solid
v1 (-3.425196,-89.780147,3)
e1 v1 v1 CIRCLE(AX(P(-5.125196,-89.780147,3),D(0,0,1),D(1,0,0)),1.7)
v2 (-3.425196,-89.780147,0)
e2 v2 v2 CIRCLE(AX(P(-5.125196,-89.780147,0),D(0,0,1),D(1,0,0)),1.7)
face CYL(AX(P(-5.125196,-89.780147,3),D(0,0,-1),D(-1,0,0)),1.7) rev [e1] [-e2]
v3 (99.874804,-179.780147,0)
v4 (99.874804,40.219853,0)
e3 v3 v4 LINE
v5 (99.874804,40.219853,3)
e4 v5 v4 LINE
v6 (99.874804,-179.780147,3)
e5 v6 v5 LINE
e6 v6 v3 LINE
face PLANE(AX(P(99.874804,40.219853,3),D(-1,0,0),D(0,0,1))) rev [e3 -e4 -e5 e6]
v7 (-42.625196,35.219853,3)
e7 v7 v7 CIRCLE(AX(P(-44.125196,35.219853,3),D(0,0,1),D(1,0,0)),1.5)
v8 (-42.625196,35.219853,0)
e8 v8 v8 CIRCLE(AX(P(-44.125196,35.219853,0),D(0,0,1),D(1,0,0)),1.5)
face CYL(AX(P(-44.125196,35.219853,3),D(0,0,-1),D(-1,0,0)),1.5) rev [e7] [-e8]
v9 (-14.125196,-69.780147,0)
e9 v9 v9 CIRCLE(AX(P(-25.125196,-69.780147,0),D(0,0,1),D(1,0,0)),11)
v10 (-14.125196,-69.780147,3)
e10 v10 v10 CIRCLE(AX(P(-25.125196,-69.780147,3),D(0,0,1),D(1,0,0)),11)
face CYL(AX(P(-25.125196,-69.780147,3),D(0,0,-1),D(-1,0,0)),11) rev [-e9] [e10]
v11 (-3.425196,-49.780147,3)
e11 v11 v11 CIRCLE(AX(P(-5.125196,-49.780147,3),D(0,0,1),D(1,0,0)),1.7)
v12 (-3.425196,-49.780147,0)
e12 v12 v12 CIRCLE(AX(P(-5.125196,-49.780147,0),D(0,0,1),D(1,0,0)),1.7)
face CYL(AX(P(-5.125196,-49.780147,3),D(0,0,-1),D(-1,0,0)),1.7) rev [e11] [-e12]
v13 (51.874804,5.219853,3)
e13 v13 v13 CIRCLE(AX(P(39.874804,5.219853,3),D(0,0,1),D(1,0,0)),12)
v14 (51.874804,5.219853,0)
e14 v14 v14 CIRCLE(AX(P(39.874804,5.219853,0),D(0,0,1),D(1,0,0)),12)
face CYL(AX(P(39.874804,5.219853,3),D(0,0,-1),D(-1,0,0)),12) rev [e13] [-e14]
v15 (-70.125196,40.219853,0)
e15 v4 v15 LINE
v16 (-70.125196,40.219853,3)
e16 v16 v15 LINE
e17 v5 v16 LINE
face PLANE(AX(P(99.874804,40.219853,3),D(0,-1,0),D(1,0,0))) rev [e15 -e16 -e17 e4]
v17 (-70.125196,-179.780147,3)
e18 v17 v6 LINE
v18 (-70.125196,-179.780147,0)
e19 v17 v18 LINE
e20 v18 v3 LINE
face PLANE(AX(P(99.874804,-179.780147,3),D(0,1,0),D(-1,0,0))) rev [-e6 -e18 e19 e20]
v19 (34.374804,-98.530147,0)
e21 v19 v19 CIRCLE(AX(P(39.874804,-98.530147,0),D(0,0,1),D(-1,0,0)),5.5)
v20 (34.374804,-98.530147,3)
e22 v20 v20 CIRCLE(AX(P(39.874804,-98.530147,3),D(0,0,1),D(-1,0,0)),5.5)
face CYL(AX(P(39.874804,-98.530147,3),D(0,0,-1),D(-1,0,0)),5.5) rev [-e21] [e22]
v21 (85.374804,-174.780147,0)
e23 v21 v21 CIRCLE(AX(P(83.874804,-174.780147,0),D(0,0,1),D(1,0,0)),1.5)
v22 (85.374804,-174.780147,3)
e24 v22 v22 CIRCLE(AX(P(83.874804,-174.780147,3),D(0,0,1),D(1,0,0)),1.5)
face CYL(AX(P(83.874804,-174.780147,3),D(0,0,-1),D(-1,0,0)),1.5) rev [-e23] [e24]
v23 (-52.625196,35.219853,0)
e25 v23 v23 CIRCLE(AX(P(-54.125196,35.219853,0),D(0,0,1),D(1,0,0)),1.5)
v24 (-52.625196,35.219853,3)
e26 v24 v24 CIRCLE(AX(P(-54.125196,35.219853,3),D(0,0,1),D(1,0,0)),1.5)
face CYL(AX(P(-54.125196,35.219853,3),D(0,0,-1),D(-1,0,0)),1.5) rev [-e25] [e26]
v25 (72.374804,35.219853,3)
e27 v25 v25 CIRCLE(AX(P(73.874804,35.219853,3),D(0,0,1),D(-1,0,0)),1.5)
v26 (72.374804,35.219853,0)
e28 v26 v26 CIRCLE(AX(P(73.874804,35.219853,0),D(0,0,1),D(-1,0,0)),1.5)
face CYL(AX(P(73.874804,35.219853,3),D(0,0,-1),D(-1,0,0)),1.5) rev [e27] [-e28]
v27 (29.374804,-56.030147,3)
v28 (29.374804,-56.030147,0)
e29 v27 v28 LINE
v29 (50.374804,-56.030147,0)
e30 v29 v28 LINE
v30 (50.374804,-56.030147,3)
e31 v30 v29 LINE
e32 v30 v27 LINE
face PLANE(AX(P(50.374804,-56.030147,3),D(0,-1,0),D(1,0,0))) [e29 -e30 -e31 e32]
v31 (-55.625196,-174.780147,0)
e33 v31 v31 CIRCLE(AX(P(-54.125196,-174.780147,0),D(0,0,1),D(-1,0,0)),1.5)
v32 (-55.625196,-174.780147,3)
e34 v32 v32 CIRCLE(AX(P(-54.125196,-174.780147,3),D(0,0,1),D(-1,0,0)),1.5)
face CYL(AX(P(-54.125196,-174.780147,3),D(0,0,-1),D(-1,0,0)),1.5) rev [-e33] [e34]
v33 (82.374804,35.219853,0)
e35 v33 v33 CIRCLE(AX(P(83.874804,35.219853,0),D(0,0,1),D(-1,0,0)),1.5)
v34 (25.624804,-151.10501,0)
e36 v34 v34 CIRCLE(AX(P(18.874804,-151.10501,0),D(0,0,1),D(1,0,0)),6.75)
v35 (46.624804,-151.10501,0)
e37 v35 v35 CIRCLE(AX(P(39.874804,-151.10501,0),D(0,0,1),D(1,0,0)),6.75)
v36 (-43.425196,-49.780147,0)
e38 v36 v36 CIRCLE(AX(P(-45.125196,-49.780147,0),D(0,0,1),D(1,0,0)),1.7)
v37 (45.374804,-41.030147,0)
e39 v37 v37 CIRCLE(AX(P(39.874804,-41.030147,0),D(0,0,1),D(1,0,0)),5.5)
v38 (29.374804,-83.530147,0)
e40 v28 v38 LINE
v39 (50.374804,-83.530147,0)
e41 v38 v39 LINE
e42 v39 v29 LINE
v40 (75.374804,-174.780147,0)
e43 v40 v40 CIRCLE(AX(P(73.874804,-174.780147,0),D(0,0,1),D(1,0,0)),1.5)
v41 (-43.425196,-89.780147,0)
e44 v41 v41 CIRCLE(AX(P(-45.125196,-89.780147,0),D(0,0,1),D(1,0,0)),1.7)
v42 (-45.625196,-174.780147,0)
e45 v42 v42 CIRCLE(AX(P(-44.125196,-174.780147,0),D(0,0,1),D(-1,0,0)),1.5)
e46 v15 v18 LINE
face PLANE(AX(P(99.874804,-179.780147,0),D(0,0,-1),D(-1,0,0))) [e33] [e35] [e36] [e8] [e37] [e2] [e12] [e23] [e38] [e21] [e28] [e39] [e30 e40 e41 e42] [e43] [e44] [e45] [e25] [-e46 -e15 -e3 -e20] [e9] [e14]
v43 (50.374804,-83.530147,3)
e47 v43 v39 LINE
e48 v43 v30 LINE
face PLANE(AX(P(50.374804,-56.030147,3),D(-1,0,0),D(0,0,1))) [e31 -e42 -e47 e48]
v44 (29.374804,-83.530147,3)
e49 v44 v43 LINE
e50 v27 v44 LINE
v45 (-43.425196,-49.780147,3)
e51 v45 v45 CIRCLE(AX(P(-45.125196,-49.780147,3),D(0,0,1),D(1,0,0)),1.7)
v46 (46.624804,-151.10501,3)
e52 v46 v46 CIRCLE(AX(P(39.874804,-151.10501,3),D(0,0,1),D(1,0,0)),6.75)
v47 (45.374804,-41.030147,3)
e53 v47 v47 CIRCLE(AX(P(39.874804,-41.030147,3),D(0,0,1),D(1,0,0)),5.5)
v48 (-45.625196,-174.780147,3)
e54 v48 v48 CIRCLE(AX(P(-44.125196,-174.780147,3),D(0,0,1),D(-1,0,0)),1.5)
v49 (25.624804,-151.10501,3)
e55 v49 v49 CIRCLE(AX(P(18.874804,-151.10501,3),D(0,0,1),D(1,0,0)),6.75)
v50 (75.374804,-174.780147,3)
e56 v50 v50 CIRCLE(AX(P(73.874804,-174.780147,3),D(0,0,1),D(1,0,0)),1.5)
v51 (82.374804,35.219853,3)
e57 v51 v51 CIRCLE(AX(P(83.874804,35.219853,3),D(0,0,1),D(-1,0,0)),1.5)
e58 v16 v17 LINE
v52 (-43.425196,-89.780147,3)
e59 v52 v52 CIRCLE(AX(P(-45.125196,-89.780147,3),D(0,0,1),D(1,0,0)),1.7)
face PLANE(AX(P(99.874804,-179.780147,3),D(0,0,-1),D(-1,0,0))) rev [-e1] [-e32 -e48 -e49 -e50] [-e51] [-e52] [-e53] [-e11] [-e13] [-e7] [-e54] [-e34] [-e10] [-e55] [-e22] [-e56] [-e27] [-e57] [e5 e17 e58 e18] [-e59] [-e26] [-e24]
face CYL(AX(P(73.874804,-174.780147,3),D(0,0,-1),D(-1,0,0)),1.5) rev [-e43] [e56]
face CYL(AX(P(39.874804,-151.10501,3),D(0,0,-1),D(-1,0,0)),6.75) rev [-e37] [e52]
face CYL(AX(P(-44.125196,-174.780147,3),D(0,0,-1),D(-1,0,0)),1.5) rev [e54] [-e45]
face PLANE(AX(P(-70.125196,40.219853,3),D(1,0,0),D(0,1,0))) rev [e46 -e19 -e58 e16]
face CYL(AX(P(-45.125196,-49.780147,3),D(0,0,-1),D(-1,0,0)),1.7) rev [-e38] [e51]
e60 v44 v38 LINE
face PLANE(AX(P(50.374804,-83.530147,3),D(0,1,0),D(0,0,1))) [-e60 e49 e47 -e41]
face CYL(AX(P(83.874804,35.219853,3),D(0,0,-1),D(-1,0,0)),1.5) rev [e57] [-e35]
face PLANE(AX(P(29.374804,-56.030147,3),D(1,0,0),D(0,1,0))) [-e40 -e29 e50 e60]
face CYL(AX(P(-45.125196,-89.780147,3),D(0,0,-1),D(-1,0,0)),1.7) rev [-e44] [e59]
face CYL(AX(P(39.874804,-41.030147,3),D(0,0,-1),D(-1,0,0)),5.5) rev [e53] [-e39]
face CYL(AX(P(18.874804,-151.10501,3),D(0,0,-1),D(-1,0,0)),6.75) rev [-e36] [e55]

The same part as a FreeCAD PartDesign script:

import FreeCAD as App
import Part
import Sketcher

V = App.Vector
Q = App.Units.Quantity


def add_polygon(sketch, points):
    """Adds a closed chain of lines whose ends are joined by coincident constraints."""
    first, n = sketch.GeometryCount, len(points)
    for a, b in zip(points, points[1:] + points[:1]):
        sketch.addGeometry(Part.LineSegment(App.Vector(*a, 0), App.Vector(*b, 0)), False)
    for i in range(n):
        sketch.addConstraint(Sketcher.Constraint("Coincident", first + i, 2, first + (i + 1) % n, 1))

doc = App.newDocument("Part")
body = doc.addObject("PartDesign::Body", "Body")

sketch1 = body.newObject("Sketcher::SketchObject", "Sketch")
sketch1.AttachmentSupport = (doc.getObject("XY_Plane"), [""])
sketch1.MapMode = "FlatFace"
add_polygon(sketch1, [(-70.1, 40.2), (-70.1, -179.8), (99.9, -179.8), (99.9, 40.2)])
sketch1.addGeometry(Part.Circle(V(-54.1, -174.8, 0), V(0, 0, 1), 1.5), False)
sketch1.addGeometry(Part.Circle(V(-44.1, -174.8, 0), V(0, 0, 1), 1.5), False)
sketch1.addGeometry(Part.Circle(V(-45.1, -89.8, 0), V(0, 0, 1), 1.7), False)
sketch1.addGeometry(Part.Circle(V(-5.1, -89.8, 0), V(0, 0, 1), 1.7), False)
sketch1.addGeometry(Part.Circle(V(18.9, -151.1, 0), V(0, 0, 1), 6.8), False)
sketch1.addGeometry(Part.Circle(V(39.9, -151.1, 0), V(0, 0, 1), 6.8), False)
sketch1.addGeometry(Part.Circle(V(73.9, -174.8, 0), V(0, 0, 1), 1.5), False)
sketch1.addGeometry(Part.Circle(V(83.9, -174.8, 0), V(0, 0, 1), 1.5), False)
sketch1.addGeometry(Part.Circle(V(39.9, -98.5, 0), V(0, 0, 1), 5.5), False)
sketch1.addGeometry(Part.Circle(V(-45.1, -49.8, 0), V(0, 0, 1), 1.7), False)
sketch1.addGeometry(Part.Circle(V(-25.1, -69.8, 0), V(0, 0, 1), 11), False)
sketch1.addGeometry(Part.Circle(V(-5.1, -49.8, 0), V(0, 0, 1), 1.7), False)
sketch1.addGeometry(Part.Circle(V(-54.1, 35.2, 0), V(0, 0, 1), 1.5), False)
sketch1.addGeometry(Part.Circle(V(-44.1, 35.2, 0), V(0, 0, 1), 1.5), False)
add_polygon(sketch1, [(50.4, -83.5), (29.4, -83.5), (29.4, -56), (50.4, -56)])
sketch1.addGeometry(Part.Circle(V(39.9, -41, 0), V(0, 0, 1), 5.5), False)
sketch1.addGeometry(Part.Circle(V(39.9, 5.2, 0), V(0, 0, 1), 12), False)
sketch1.addGeometry(Part.Circle(V(73.9, 35.2, 0), V(0, 0, 1), 1.5), False)
sketch1.addGeometry(Part.Circle(V(83.9, 35.2, 0), V(0, 0, 1), 1.5), False)
sketch1.addConstraint(Sketcher.Constraint("Vertical", 0))
sketch1.addConstraint(Sketcher.Constraint("Horizontal", 1))
sketch1.addConstraint(Sketcher.Constraint("Vertical", 2))
sketch1.addConstraint(Sketcher.Constraint("Horizontal", 3))
sketch1.addConstraint(Sketcher.Constraint("Horizontal", 18))
sketch1.addConstraint(Sketcher.Constraint("Vertical", 19))
sketch1.addConstraint(Sketcher.Constraint("Horizontal", 20))
sketch1.addConstraint(Sketcher.Constraint("Vertical", 21))
sketch1.addConstraint(Sketcher.Constraint("Equal", 4, 5))
sketch1.addConstraint(Sketcher.Constraint("Equal", 6, 7))
sketch1.addConstraint(Sketcher.Constraint("Equal", 8, 9))
sketch1.addConstraint(Sketcher.Constraint("Equal", 5, 10))
sketch1.addConstraint(Sketcher.Constraint("Equal", 10, 11))
sketch1.addConstraint(Sketcher.Constraint("Equal", 7, 13))
sketch1.addConstraint(Sketcher.Constraint("Equal", 13, 15))
sketch1.addConstraint(Sketcher.Constraint("Equal", 11, 16))
sketch1.addConstraint(Sketcher.Constraint("Equal", 16, 17))
sketch1.addConstraint(Sketcher.Constraint("Equal", 12, 22))
sketch1.addConstraint(Sketcher.Constraint("Equal", 17, 24))
sketch1.addConstraint(Sketcher.Constraint("Equal", 24, 25))
sketch1.addConstraint(Sketcher.Constraint("Horizontal", 4, 3, 5, 3))
sketch1.addConstraint(Sketcher.Constraint("Horizontal", 6, 3, 7, 3))
sketch1.addConstraint(Sketcher.Constraint("Horizontal", 8, 3, 9, 3))
sketch1.addConstraint(Sketcher.Constraint("Horizontal", 5, 3, 10, 3))
sketch1.addConstraint(Sketcher.Constraint("Horizontal", 10, 3, 11, 3))
sketch1.addConstraint(Sketcher.Constraint("Horizontal", 13, 3, 15, 3))
sketch1.addConstraint(Sketcher.Constraint("Horizontal", 16, 3, 17, 3))
sketch1.addConstraint(Sketcher.Constraint("Horizontal", 17, 3, 24, 3))
sketch1.addConstraint(Sketcher.Constraint("Horizontal", 24, 3, 25, 3))
sketch1.addConstraint(Sketcher.Constraint("Vertical", 9, 3, 12, 3))
sketch1.addConstraint(Sketcher.Constraint("Vertical", 6, 3, 13, 3))
sketch1.addConstraint(Sketcher.Constraint("Vertical", 7, 3, 15, 3))
sketch1.addConstraint(Sketcher.Constraint("Vertical", 4, 3, 16, 3))
sketch1.addConstraint(Sketcher.Constraint("Vertical", 5, 3, 17, 3))
sketch1.addConstraint(Sketcher.Constraint("Vertical", 12, 3, 22, 3))
sketch1.addConstraint(Sketcher.Constraint("Vertical", 22, 3, 23, 3))
sketch1.addConstraint(Sketcher.Constraint("Vertical", 10, 3, 24, 3))
sketch1.addConstraint(Sketcher.Constraint("Vertical", 11, 3, 25, 3))
sketch1.addConstraint(Sketcher.Constraint("Diameter", 4, Q("3 mm")))
sketch1.addConstraint(Sketcher.Constraint("Diameter", 12, Q("11 mm")))
sketch1.addConstraint(Sketcher.Constraint("Diameter", 14, Q("22 mm")))
sketch1.addConstraint(Sketcher.Constraint("Diameter", 23, Q("24 mm")))
sketch1.addConstraint(Sketcher.Constraint("Diameter", 6, Q("3.4 mm")))
sketch1.addConstraint(Sketcher.Constraint("Diameter", 8, Q("13.5 mm")))
sketch1.addConstraint(Sketcher.Constraint("DistanceX", 1, 1, 1, 2, Q("170 mm")))
sketch1.addConstraint(Sketcher.Constraint("DistanceX", 18, 2, 18, 1, Q("21 mm")))
sketch1.addConstraint(Sketcher.Constraint("DistanceY", 0, 2, 0, 1, Q("220 mm")))
sketch1.addConstraint(Sketcher.Constraint("DistanceY", 19, 1, 19, 2, Q("27.5 mm")))
sketch1.addConstraint(Sketcher.Constraint("DistanceX", 4, 3, 5, 3, Q("10 mm")))
sketch1.addConstraint(Sketcher.Constraint("DistanceX", 6, 3, 5, 3, Q("1 mm")))
sketch1.addConstraint(Sketcher.Constraint("DistanceY", 5, 3, 6, 3, Q("85 mm")))
sketch1.addConstraint(Sketcher.Constraint("DistanceX", 6, 3, 7, 3, Q("40 mm")))
sketch1.addConstraint(Sketcher.Constraint("DistanceX", 7, 3, 8, 3, Q("24 mm")))
sketch1.addConstraint(Sketcher.Constraint("DistanceX", 8, 3, 9, 3, Q("21 mm")))
sketch1.addConstraint(Sketcher.Constraint("DistanceX", 9, 3, 10, 3, Q("34 mm")))
sketch1.addConstraint(Sketcher.Constraint("DistanceX", 10, 3, 11, 3, Q("10 mm")))
sketch1.addConstraint(Sketcher.Constraint("DistanceY", 6, 3, 13, 3, Q("40 mm")))
sketch1.addConstraint(Sketcher.Constraint("DistanceX", 6, 3, 14, 3, Q("20 mm")))
sketch1.addConstraint(Sketcher.Constraint("DistanceY", 6, 3, 14, 3, Q("20 mm")))
sketch1.addConstraint(Sketcher.Constraint("DistanceY", 13, 3, 16, 3, Q("85 mm")))
sketch1.addConstraint(Sketcher.Constraint("DistanceY", 15, 3, 23, 3, Q("55 mm")))
sketch1.addConstraint(Sketcher.Constraint("DistanceX", 0, 2, 4, 3, Q("16 mm")))
sketch1.addConstraint(Sketcher.Constraint("DistanceY", 0, 2, 4, 3, Q("5 mm")))
sketch1.addConstraint(Sketcher.Constraint("DistanceY", 12, 3, 18, 2, Q("15 mm")))
sketch1.addConstraint(Sketcher.Constraint("DistanceY", 19, 2, 22, 3, Q("15 mm")))
sketch1.addConstraint(Sketcher.Constraint("DistanceX", 18, 2, 12, 3, Q("10.5 mm")))
sketch1.addConstraint(Sketcher.Constraint("DistanceY", 12, 3, 7, 3, Q("8.75 mm")))
sketch1.addConstraint(Sketcher.Constraint("DistanceY", 8, 3, -1, 1, Q("151.10501 mm")))
sketch1.addConstraint(Sketcher.Constraint("DistanceX", 4, 3, -1, 1, Q("54.125196 mm")))
sketch1.addConstraint(Sketcher.Constraint("DistanceY", 4, 3, -1, 1, Q("174.780147 mm")))
pad1 = body.newObject("PartDesign::Pad", "Pad")
pad1.Profile = sketch1
pad1.Length = 3

doc.recompute()
